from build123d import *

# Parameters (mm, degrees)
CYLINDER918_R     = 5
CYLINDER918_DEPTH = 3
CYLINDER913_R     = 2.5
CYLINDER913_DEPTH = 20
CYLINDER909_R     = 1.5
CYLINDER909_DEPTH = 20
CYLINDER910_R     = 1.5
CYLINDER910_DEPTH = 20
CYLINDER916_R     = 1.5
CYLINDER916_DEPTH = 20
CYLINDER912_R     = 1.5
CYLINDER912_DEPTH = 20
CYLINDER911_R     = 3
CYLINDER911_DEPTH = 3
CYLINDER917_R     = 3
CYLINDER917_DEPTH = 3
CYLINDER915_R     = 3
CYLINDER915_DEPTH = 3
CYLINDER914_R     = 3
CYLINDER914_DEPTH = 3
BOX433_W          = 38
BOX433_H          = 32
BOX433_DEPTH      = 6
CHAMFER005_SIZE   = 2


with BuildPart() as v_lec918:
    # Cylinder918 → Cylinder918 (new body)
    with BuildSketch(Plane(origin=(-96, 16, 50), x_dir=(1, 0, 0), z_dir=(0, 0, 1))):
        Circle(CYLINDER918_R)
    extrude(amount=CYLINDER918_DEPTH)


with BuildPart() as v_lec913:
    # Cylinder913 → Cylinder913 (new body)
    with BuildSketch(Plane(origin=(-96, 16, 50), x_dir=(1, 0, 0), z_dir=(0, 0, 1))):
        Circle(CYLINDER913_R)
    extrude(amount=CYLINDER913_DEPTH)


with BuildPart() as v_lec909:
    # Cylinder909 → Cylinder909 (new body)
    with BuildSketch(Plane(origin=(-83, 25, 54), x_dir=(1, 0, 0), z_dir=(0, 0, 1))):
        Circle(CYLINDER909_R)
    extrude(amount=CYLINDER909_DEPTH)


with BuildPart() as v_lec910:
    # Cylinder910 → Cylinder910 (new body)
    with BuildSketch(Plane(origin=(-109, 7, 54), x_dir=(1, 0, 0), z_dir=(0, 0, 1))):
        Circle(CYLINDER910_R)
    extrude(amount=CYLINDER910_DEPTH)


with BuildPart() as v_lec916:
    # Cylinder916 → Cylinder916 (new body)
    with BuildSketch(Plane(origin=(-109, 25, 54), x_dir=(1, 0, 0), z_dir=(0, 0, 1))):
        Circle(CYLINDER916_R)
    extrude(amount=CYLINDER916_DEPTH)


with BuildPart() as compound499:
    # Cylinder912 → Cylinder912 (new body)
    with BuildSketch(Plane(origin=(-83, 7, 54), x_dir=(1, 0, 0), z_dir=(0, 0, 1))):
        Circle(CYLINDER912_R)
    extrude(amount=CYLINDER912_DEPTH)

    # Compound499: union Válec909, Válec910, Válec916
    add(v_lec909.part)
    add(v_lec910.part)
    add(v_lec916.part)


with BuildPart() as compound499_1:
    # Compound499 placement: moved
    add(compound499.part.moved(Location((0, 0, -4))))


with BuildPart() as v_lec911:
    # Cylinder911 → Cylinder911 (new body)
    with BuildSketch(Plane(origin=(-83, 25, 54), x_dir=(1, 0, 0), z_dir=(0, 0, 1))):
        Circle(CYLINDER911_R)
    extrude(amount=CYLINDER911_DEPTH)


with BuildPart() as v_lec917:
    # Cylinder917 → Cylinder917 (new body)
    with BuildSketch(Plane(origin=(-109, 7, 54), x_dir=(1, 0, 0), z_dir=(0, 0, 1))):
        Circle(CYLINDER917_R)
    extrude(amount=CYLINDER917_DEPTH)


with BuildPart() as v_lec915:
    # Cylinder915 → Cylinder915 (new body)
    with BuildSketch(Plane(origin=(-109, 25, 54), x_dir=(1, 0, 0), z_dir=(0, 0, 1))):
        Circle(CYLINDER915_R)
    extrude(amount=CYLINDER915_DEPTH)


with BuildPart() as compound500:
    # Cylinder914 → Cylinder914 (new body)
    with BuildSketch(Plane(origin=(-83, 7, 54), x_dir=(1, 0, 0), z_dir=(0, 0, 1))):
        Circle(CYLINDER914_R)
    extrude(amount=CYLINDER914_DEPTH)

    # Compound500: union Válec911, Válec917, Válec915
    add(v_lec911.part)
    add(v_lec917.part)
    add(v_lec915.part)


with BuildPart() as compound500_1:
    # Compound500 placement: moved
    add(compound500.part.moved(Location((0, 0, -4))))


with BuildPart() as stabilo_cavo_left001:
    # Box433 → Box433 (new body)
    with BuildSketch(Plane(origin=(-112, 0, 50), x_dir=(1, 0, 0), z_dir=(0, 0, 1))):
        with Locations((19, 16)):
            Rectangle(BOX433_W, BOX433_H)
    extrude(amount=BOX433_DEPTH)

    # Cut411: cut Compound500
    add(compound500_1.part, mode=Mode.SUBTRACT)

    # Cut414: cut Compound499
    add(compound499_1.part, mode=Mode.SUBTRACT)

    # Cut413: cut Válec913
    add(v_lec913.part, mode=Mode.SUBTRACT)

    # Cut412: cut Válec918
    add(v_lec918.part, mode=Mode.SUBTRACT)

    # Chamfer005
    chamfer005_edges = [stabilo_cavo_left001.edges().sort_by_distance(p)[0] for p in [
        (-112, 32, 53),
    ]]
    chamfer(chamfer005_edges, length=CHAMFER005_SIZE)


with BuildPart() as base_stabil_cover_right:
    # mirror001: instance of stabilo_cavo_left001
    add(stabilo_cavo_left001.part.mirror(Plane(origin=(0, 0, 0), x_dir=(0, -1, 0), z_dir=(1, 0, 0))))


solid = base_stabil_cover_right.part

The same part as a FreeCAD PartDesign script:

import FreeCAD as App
import Part
import Sketcher

V = App.Vector


def edges_at(feature, points):
    """Names of the edges that pass closest to the given points."""
    edges = feature.Shape.Edges
    near = lambda p: min(range(len(edges)), key=lambda i: edges[i].distToShape(Part.Vertex(*p))[0])
    return sorted({f"Edge{near(p) + 1}" for p in points})

doc = App.newDocument("Part")
body = doc.addObject("PartDesign::Body", "Body")

# Sketch on XY plane
sketch1 = body.newObject("Sketcher::SketchObject", "Sketch")
sketch1.AttachmentSupport = (doc.getObject("XY_Plane"), [""])
sketch1.MapMode = "FlatFace"
sketch1.AttachmentOffset = App.Placement(V(0, 0, 50), App.Rotation())
sketch1.addGeometry(Part.Circle(V(-96, 16, 0), V(0, 0, 1), 5), False)
sketch1.addConstraint(Sketcher.Constraint("Diameter", 0, 10.0))
sketch1.addConstraint(Sketcher.Constraint("DistanceX", 0, 3, -1, 1, 96.0))
sketch1.addConstraint(Sketcher.Constraint("DistanceY", -1, 1, 0, 3, 16.0))
pad1 = body.newObject("PartDesign::Pad", "Pad")
pad1.Profile = sketch1
pad1.Length = 3
body2 = doc.addObject("PartDesign::Body", "Body001")

# Sketch on XY plane
sketch2 = body2.newObject("Sketcher::SketchObject", "Sketch001")
sketch2.AttachmentSupport = (doc.getObject("XY_Plane001"), [""])
sketch2.MapMode = "FlatFace"
sketch2.AttachmentOffset = App.Placement(V(0, 0, 50), App.Rotation())
sketch2.addGeometry(Part.Circle(V(-96, 16, 0), V(0, 0, 1), 2.5), False)
sketch2.addConstraint(Sketcher.Constraint("Diameter", 0, 5.0))
sketch2.addConstraint(Sketcher.Constraint("DistanceX", 0, 3, -1, 1, 96.0))
sketch2.addConstraint(Sketcher.Constraint("DistanceY", -1, 1, 0, 3, 16.0))
pad2 = body2.newObject("PartDesign::Pad", "Pad001")
pad2.Profile = sketch2
pad2.Length = 20
body3 = doc.addObject("PartDesign::Body", "Body002")

# Sketch on XY plane
sketch3 = body3.newObject("Sketcher::SketchObject", "Sketch002")
sketch3.AttachmentSupport = (doc.getObject("XY_Plane002"), [""])
sketch3.MapMode = "FlatFace"
sketch3.AttachmentOffset = App.Placement(V(0, 0, 54), App.Rotation())
sketch3.addGeometry(Part.Circle(V(-83, 25, 0), V(0, 0, 1), 1.5), False)
sketch3.addConstraint(Sketcher.Constraint("Diameter", 0, 3.0))
sketch3.addConstraint(Sketcher.Constraint("DistanceX", 0, 3, -1, 1, 83.0))
sketch3.addConstraint(Sketcher.Constraint("DistanceY", -1, 1, 0, 3, 25.0))
pad3 = body3.newObject("PartDesign::Pad", "Pad002")
pad3.Profile = sketch3
pad3.Length = 20
body4 = doc.addObject("PartDesign::Body", "Body003")

# Sketch on XY plane
sketch4 = body4.newObject("Sketcher::SketchObject", "Sketch003")
sketch4.AttachmentSupport = (doc.getObject("XY_Plane003"), [""])
sketch4.MapMode = "FlatFace"
sketch4.AttachmentOffset = App.Placement(V(0, 0, 54), App.Rotation())
sketch4.addGeometry(Part.Circle(V(-109, 7, 0), V(0, 0, 1), 1.5), False)
sketch4.addConstraint(Sketcher.Constraint("Diameter", 0, 3.0))
sketch4.addConstraint(Sketcher.Constraint("DistanceX", 0, 3, -1, 1, 109.0))
sketch4.addConstraint(Sketcher.Constraint("DistanceY", -1, 1, 0, 3, 7.0))
pad4 = body4.newObject("PartDesign::Pad", "Pad003")
pad4.Profile = sketch4
pad4.Length = 20
body5 = doc.addObject("PartDesign::Body", "Body004")

# Sketch on XY plane
sketch5 = body5.newObject("Sketcher::SketchObject", "Sketch004")
sketch5.AttachmentSupport = (doc.getObject("XY_Plane004"), [""])
sketch5.MapMode = "FlatFace"
sketch5.AttachmentOffset = App.Placement(V(0, 0, 54), App.Rotation())
sketch5.addGeometry(Part.Circle(V(-109, 25, 0), V(0, 0, 1), 1.5), False)
sketch5.addConstraint(Sketcher.Constraint("Diameter", 0, 3.0))
sketch5.addConstraint(Sketcher.Constraint("DistanceX", 0, 3, -1, 1, 109.0))
sketch5.addConstraint(Sketcher.Constraint("DistanceY", -1, 1, 0, 3, 25.0))
pad5 = body5.newObject("PartDesign::Pad", "Pad004")
pad5.Profile = sketch5
pad5.Length = 20
body6 = doc.addObject("PartDesign::Body", "Body005")
body6.AllowCompound = True

# Sketch on XY plane
sketch6 = body6.newObject("Sketcher::SketchObject", "Sketch005")
sketch6.AttachmentSupport = (doc.getObject("XY_Plane005"), [""])
sketch6.MapMode = "FlatFace"
sketch6.AttachmentOffset = App.Placement(V(0, 0, 54), App.Rotation())
sketch6.addGeometry(Part.Circle(V(-83, 7, 0), V(0, 0, 1), 1.5), False)
sketch6.addConstraint(Sketcher.Constraint("Diameter", 0, 3.0))
sketch6.addConstraint(Sketcher.Constraint("DistanceX", 0, 3, -1, 1, 83.0))
sketch6.addConstraint(Sketcher.Constraint("DistanceY", -1, 1, 0, 3, 7.0))
pad6 = body6.newObject("PartDesign::Pad", "Pad005")
pad6.Profile = sketch6
pad6.Length = 20
doc.recompute()

boolean = body6.newObject("PartDesign::Boolean", "Boolean")
boolean.Type = "Fuse"
boolean.addObjects([body3])
doc.recompute()

boolean2 = body6.newObject("PartDesign::Boolean", "Boolean001")
boolean2.Type = "Fuse"
boolean2.addObjects([body4])
doc.recompute()

boolean3 = body6.newObject("PartDesign::Boolean", "Boolean002")
boolean3.Type = "Fuse"
boolean3.addObjects([body5])
body7 = doc.addObject("PartDesign::Body", "Body006")
body7.AllowCompound = True
doc.recompute()

body6.Placement = App.Placement(V(0, 0, -4), App.Rotation(V(0, 0, 1), 0))
boolean4 = body7.newObject("PartDesign::Boolean", "Boolean003")
boolean4.Type = "Fuse"
boolean4.addObjects([body6])
body8 = doc.addObject("PartDesign::Body", "Body007")

# Sketch on XY plane
sketch7 = body8.newObject("Sketcher::SketchObject", "Sketch006")
sketch7.AttachmentSupport = (doc.getObject("XY_Plane007"), [""])
sketch7.MapMode = "FlatFace"
sketch7.AttachmentOffset = App.Placement(V(0, 0, 54), App.Rotation())
sketch7.addGeometry(Part.Circle(V(-83, 25, 0), V(0, 0, 1), 3), False)
sketch7.addConstraint(Sketcher.Constraint("Diameter", 0, 6.0))
sketch7.addConstraint(Sketcher.Constraint("DistanceX", 0, 3, -1, 1, 83.0))
sketch7.addConstraint(Sketcher.Constraint("DistanceY", -1, 1, 0, 3, 25.0))
pad7 = body8.newObject("PartDesign::Pad", "Pad006")
pad7.Profile = sketch7
pad7.Length = 3
body9 = doc.addObject("PartDesign::Body", "Body008")

# Sketch on XY plane
sketch8 = body9.newObject("Sketcher::SketchObject", "Sketch007")
sketch8.AttachmentSupport = (doc.getObject("XY_Plane008"), [""])
sketch8.MapMode = "FlatFace"
sketch8.AttachmentOffset = App.Placement(V(0, 0, 54), App.Rotation())
sketch8.addGeometry(Part.Circle(V(-109, 7, 0), V(0, 0, 1), 3), False)
sketch8.addConstraint(Sketcher.Constraint("Diameter", 0, 6.0))
sketch8.addConstraint(Sketcher.Constraint("DistanceX", 0, 3, -1, 1, 109.0))
sketch8.addConstraint(Sketcher.Constraint("DistanceY", -1, 1, 0, 3, 7.0))
pad8 = body9.newObject("PartDesign::Pad", "Pad007")
pad8.Profile = sketch8
pad8.Length = 3
body10 = doc.addObject("PartDesign::Body", "Body009")

# Sketch on XY plane
sketch9 = body10.newObject("Sketcher::SketchObject", "Sketch008")
sketch9.AttachmentSupport = (doc.getObject("XY_Plane009"), [""])
sketch9.MapMode = "FlatFace"
sketch9.AttachmentOffset = App.Placement(V(0, 0, 54), App.Rotation())
sketch9.addGeometry(Part.Circle(V(-109, 25, 0), V(0, 0, 1), 3), False)
sketch9.addConstraint(Sketcher.Constraint("Diameter", 0, 6.0))
sketch9.addConstraint(Sketcher.Constraint("DistanceX", 0, 3, -1, 1, 109.0))
sketch9.addConstraint(Sketcher.Constraint("DistanceY", -1, 1, 0, 3, 25.0))
pad9 = body10.newObject("PartDesign::Pad", "Pad008")
pad9.Profile = sketch9
pad9.Length = 3
body11 = doc.addObject("PartDesign::Body", "Body010")
body11.AllowCompound = True

# Sketch on XY plane
sketch10 = body11.newObject("Sketcher::SketchObject", "Sketch009")
sketch10.AttachmentSupport = (doc.getObject("XY_Plane010"), [""])
sketch10.MapMode = "FlatFace"
sketch10.AttachmentOffset = App.Placement(V(0, 0, 54), App.Rotation())
sketch10.addGeometry(Part.Circle(V(-83, 7, 0), V(0, 0, 1), 3), False)
sketch10.addConstraint(Sketcher.Constraint("Diameter", 0, 6.0))
sketch10.addConstraint(Sketcher.Constraint("DistanceX", 0, 3, -1, 1, 83.0))
sketch10.addConstraint(Sketcher.Constraint("DistanceY", -1, 1, 0, 3, 7.0))
pad10 = body11.newObject("PartDesign::Pad", "Pad009")
pad10.Profile = sketch10
pad10.Length = 3
doc.recompute()

boolean5 = body11.newObject("PartDesign::Boolean", "Boolean004")
boolean5.Type = "Fuse"
boolean5.addObjects([body8])
doc.recompute()

boolean6 = body11.newObject("PartDesign::Boolean", "Boolean005")
boolean6.Type = "Fuse"
boolean6.addObjects([body9])
doc.recompute()

boolean7 = body11.newObject("PartDesign::Boolean", "Boolean006")
boolean7.Type = "Fuse"
boolean7.addObjects([body10])
body12 = doc.addObject("PartDesign::Body", "Body011")
body12.AllowCompound = True
doc.recompute()

body11.Placement = App.Placement(V(0, 0, -4), App.Rotation(V(0, 0, 1), 0))
boolean8 = body12.newObject("PartDesign::Boolean", "Boolean007")
boolean8.Type = "Fuse"
boolean8.addObjects([body11])
body13 = doc.addObject("PartDesign::Body", "Body012")

# Sketch on XY plane
sketch11 = body13.newObject("Sketcher::SketchObject", "Sketch010")
sketch11.AttachmentSupport = (doc.getObject("XY_Plane012"), [""])
sketch11.MapMode = "FlatFace"
sketch11.AttachmentOffset = App.Placement(V(0, 0, 50), App.Rotation())
sketch11.addGeometry(Part.LineSegment(V(-112, 32, 0), V(-112, 0, 0)), False)
sketch11.addGeometry(Part.LineSegment(V(-112, 0, 0), V(-74, 0, 0)), False)
sketch11.addGeometry(Part.LineSegment(V(-74, 0, 0), V(-74, 32, 0)), False)
sketch11.addGeometry(Part.LineSegment(V(-74, 32, 0), V(-112, 32, 0)), False)
sketch11.addConstraint(Sketcher.Constraint("Coincident", 0, 2, 1, 1))
sketch11.addConstraint(Sketcher.Constraint("Coincident", 1, 2, 2, 1))
sketch11.addConstraint(Sketcher.Constraint("Coincident", 2, 2, 3, 1))
sketch11.addConstraint(Sketcher.Constraint("Coincident", 3, 2, 0, 1))
sketch11.addConstraint(Sketcher.Constraint("Vertical", 0))
sketch11.addConstraint(Sketcher.Constraint("Horizontal", 1))
sketch11.addConstraint(Sketcher.Constraint("Vertical", 2))
sketch11.addConstraint(Sketcher.Constraint("Horizontal", 3))
sketch11.addConstraint(Sketcher.Constraint("PointOnObject", 0, 2, -1))
sketch11.addConstraint(Sketcher.Constraint("DistanceX", 1, 1, 1, 2, 38.0))
sketch11.addConstraint(Sketcher.Constraint("DistanceY", 0, 2, 0, 1, 32.0))
sketch11.addConstraint(Sketcher.Constraint("DistanceX", 0, 2, -1, 1, 112.0))
pad11 = body13.newObject("PartDesign::Pad", "Pad010")
pad11.Profile = sketch11
pad11.Length = 6
doc.recompute()

boolean9 = body13.newObject("PartDesign::Boolean", "Boolean008")
boolean9.Type = "Cut"
boolean9.addObjects([body12])
doc.recompute()

boolean10 = body13.newObject("PartDesign::Boolean", "Boolean009")
boolean10.Type = "Cut"
boolean10.addObjects([body7])
doc.recompute()

boolean11 = body13.newObject("PartDesign::Boolean", "Boolean010")
boolean11.Type = "Cut"
boolean11.addObjects([body2])
doc.recompute()

boolean12 = body13.newObject("PartDesign::Boolean", "Boolean011")
boolean12.Type = "Cut"
boolean12.addObjects([body])
doc.recompute()

chamfer = body13.newObject("PartDesign::Chamfer", "Chamfer")
chamfer.Base = (boolean12, edges_at(boolean12, [(-112, 32, 53)]))
chamfer.Size = 2
body14 = doc.addObject("PartDesign::Body", "Body013")
doc.recompute()

mirroring = doc.addObject("Part::Mirroring", "Mirroring")
mirroring.Source = body13
mirroring.Base = V(0, 0, 0)
mirroring.Normal = V(1, 0, 0)
body14.BaseFeature = mirroring
doc.recompute()
body13.Visibility = False
mirroring.Visibility = False

doc.recompute()
